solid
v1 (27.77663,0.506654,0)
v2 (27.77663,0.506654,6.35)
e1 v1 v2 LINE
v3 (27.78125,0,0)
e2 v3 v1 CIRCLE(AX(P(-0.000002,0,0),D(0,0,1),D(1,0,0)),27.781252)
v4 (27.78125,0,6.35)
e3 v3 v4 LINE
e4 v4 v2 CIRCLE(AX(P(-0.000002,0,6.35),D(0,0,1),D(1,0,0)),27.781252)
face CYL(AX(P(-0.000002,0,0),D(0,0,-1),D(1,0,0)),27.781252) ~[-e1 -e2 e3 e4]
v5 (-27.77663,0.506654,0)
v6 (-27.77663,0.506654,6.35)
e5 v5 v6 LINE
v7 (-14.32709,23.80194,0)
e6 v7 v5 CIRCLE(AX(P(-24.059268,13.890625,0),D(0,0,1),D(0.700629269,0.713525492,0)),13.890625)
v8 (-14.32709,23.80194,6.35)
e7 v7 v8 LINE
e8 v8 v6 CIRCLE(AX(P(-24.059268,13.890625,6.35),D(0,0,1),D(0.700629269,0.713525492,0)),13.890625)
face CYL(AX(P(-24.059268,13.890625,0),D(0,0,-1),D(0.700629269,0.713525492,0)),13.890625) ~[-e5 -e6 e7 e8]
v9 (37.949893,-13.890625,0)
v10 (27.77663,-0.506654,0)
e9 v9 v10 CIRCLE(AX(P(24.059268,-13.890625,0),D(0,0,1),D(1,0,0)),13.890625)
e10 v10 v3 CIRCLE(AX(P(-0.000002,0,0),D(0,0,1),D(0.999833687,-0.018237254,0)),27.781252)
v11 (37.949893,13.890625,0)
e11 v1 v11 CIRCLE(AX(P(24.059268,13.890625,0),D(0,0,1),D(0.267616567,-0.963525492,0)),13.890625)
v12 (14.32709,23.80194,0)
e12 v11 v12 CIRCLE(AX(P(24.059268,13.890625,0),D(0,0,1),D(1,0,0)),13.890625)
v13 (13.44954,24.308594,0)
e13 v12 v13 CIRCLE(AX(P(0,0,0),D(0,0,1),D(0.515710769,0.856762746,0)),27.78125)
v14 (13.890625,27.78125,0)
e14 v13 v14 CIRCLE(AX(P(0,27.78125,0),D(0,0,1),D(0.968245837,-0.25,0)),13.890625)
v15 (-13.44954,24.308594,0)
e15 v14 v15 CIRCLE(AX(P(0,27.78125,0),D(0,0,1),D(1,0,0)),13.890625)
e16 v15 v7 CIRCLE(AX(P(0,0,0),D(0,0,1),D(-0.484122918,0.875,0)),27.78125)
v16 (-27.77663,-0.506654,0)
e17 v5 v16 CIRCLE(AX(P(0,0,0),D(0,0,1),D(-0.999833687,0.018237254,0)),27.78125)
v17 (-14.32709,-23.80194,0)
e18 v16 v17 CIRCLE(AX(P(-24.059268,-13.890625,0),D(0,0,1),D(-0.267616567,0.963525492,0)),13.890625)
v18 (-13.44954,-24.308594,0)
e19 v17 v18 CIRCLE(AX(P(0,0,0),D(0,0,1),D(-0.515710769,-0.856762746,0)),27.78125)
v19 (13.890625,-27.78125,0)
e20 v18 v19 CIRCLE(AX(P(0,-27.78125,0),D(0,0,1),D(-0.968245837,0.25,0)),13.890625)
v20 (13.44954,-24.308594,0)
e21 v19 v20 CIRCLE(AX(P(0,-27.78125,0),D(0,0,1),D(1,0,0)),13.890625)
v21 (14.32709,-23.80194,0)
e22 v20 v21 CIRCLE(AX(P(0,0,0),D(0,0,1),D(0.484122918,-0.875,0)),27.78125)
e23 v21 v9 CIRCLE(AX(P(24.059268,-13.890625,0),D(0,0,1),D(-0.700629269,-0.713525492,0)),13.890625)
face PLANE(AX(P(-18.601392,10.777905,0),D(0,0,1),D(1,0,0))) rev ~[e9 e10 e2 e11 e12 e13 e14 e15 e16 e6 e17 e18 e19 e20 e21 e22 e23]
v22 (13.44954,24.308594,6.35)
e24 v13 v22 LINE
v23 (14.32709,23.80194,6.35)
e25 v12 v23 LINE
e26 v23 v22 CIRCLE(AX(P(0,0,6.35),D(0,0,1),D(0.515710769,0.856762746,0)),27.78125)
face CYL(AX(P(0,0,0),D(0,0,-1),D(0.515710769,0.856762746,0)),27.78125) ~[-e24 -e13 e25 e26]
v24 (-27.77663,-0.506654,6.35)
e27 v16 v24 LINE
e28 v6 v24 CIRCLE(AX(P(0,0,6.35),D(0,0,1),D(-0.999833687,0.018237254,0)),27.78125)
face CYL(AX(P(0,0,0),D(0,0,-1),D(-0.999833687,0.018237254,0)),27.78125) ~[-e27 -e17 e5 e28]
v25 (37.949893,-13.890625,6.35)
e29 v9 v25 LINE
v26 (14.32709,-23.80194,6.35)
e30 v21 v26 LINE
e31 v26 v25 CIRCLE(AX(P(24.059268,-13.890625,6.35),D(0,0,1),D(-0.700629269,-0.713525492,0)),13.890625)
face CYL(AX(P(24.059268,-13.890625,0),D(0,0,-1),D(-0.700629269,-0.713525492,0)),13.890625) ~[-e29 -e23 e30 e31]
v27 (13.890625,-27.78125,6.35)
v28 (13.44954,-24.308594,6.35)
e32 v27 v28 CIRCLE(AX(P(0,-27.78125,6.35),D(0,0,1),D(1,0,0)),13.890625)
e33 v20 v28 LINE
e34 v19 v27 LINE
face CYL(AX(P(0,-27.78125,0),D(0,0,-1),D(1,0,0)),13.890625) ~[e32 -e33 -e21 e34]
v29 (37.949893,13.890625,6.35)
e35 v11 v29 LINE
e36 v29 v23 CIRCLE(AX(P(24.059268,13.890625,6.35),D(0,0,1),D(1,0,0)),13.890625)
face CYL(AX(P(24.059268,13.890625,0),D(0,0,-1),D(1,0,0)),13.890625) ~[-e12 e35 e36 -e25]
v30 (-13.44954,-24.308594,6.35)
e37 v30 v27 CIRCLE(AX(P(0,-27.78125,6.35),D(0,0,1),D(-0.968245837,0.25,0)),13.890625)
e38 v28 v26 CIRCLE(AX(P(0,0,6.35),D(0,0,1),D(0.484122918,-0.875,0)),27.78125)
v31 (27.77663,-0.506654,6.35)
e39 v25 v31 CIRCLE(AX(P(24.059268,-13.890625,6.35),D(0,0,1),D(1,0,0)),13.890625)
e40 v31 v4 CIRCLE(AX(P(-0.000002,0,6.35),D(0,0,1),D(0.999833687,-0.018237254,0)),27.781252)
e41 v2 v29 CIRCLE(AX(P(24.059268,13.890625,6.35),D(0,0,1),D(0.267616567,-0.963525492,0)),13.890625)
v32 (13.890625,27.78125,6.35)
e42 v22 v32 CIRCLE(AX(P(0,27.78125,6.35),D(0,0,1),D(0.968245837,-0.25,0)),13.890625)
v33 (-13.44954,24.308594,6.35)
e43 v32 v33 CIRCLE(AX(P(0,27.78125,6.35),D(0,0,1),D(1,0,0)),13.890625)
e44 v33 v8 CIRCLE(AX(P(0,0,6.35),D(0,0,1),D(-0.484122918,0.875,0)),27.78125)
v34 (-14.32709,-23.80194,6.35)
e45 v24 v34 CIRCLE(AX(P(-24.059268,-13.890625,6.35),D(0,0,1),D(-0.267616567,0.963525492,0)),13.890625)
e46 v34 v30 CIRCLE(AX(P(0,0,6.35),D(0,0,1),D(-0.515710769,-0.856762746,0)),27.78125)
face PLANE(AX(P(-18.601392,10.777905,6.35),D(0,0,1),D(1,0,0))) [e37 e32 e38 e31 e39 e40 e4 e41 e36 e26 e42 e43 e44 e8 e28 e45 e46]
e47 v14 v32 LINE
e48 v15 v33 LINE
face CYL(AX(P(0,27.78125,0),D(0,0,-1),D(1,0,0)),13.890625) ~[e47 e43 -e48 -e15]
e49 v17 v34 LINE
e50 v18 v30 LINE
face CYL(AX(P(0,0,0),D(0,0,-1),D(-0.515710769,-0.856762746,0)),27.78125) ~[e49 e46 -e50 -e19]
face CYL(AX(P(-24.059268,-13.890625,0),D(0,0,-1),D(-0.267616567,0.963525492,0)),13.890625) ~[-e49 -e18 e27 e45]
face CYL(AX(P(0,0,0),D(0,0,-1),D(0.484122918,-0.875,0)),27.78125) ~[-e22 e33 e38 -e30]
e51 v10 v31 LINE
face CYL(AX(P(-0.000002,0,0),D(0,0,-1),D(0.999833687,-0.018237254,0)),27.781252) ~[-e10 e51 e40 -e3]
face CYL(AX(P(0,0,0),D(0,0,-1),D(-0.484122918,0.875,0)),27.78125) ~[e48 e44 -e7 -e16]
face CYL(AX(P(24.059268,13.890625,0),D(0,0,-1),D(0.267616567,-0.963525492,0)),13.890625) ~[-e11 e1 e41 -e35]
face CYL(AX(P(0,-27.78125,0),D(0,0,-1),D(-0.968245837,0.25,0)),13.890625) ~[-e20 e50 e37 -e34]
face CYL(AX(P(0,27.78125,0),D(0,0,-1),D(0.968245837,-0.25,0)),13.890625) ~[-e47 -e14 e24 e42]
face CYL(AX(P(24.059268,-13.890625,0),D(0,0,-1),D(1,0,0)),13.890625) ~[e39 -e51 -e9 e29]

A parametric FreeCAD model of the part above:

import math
import FreeCAD as App
import Part
import Sketcher
Q = App.Units.Quantity

doc = App.newDocument("Part")
params = doc.addObject("Spreadsheet::Sheet", "Params")
for row, (alias, value) in enumerate([
    ("sketch1_radius", "1.09375 in"),
    ("sketch1_radius2", "0.546875 in"),
    ("pad1_length", "0.25 in"),
], start=1):
    params.set(f"A{row}", alias)
    params.set(f"B{row}", "=" + value)
    params.setAlias(f"B{row}", alias)

body = doc.addObject("PartDesign::Body", "Body")

sketch1 = body.newObject("Sketcher::SketchObject", "Sketch")
sketch1.AttachmentSupport = (doc.getObject("XY_Plane"), [""])
sketch1.MapMode = "FlatFace"
sketch1.addGeometry(Part.ArcOfCircle(Part.Circle(App.Vector(0, 0, 0), App.Vector(0, 0, 1), 27.8), math.radians(-61.04), math.radians(-58.96)), False)
sketch1.addGeometry(Part.ArcOfCircle(Part.Circle(App.Vector(24.1, -13.9, 0), App.Vector(0, 0, 1), 13.9), math.radians(-134), math.radians(0)), False)
sketch1.addGeometry(Part.ArcOfCircle(Part.Circle(App.Vector(24.1, -13.9, 0), App.Vector(0, 0, 1), 13.9), math.radians(0), math.radians(74)), False)
sketch1.addGeometry(Part.ArcOfCircle(Part.Circle(App.Vector(0, 0, 0), App.Vector(0, 0, 1), 27.8), math.radians(-1.04), math.radians(0)), False)
sketch1.addGeometry(Part.ArcOfCircle(Part.Circle(App.Vector(0, 0, 0), App.Vector(0, 0, 1), 27.8), math.radians(0), math.radians(1.04)), False)
sketch1.addGeometry(Part.ArcOfCircle(Part.Circle(App.Vector(24.1, 13.9, 0), App.Vector(0, 0, 1), 13.9), math.radians(-74), math.radians(0)), False)
sketch1.addGeometry(Part.ArcOfCircle(Part.Circle(App.Vector(24.1, 13.9, 0), App.Vector(0, 0, 1), 13.9), math.radians(0), math.radians(134)), False)
sketch1.addGeometry(Part.ArcOfCircle(Part.Circle(App.Vector(0, 0, 0), App.Vector(0, 0, 1), 27.8), math.radians(58.96), math.radians(61.04)), False)
sketch1.addGeometry(Part.ArcOfCircle(Part.Circle(App.Vector(0, 27.8, 0), App.Vector(0, 0, 1), 13.9), math.radians(-14.48), math.radians(0)), False)
sketch1.addGeometry(Part.ArcOfCircle(Part.Circle(App.Vector(0, 27.8, 0), App.Vector(0, 0, 1), 13.9), math.radians(0), math.radians(194)), False)
sketch1.addGeometry(Part.ArcOfCircle(Part.Circle(App.Vector(0, 0, 0), App.Vector(0, 0, 1), 27.8), math.radians(118.96), math.radians(121.04)), False)
sketch1.addGeometry(Part.ArcOfCircle(Part.Circle(App.Vector(-24.1, 13.9, 0), App.Vector(0, 0, 1), 13.9), math.radians(46), math.radians(254)), False)
sketch1.addGeometry(Part.ArcOfCircle(Part.Circle(App.Vector(0, 0, 0), App.Vector(0, 0, 1), 27.8), math.radians(178.96), math.radians(181.04)), False)
sketch1.addGeometry(Part.ArcOfCircle(Part.Circle(App.Vector(-24.1, -13.9, 0), App.Vector(0, 0, 1), 13.9), math.radians(106), math.radians(314)), False)
sketch1.addGeometry(Part.ArcOfCircle(Part.Circle(App.Vector(0, 0, 0), App.Vector(0, 0, 1), 27.8), math.radians(-121.04), math.radians(-118.96)), False)
sketch1.addGeometry(Part.ArcOfCircle(Part.Circle(App.Vector(0, -27.8, 0), App.Vector(0, 0, 1), 13.9), math.radians(166), math.radians(360)), False)
sketch1.addGeometry(Part.ArcOfCircle(Part.Circle(App.Vector(0, -27.8, 0), App.Vector(0, 0, 1), 13.9), math.radians(0), math.radians(14.48)), False)
sketch1.addConstraint(Sketcher.Constraint("Coincident", 0, 2, 1, 1))
sketch1.addConstraint(Sketcher.Constraint("Tangent", 1, 2, 2, 1))
sketch1.addConstraint(Sketcher.Constraint("Coincident", 2, 2, 3, 1))
sketch1.addConstraint(Sketcher.Constraint("Tangent", 3, 2, 4, 1))
sketch1.addConstraint(Sketcher.Constraint("Coincident", 4, 2, 5, 1))
sketch1.addConstraint(Sketcher.Constraint("Tangent", 5, 2, 6, 1))
sketch1.addConstraint(Sketcher.Constraint("Coincident", 6, 2, 7, 1))
sketch1.addConstraint(Sketcher.Constraint("Coincident", 7, 2, 8, 1))
sketch1.addConstraint(Sketcher.Constraint("Tangent", 8, 2, 9, 1))
sketch1.addConstraint(Sketcher.Constraint("Coincident", 9, 2, 10, 1))
sketch1.addConstraint(Sketcher.Constraint("Coincident", 10, 2, 11, 1))
sketch1.addConstraint(Sketcher.Constraint("Coincident", 11, 2, 12, 1))
sketch1.addConstraint(Sketcher.Constraint("Coincident", 12, 2, 13, 1))
sketch1.addConstraint(Sketcher.Constraint("Coincident", 13, 2, 14, 1))
sketch1.addConstraint(Sketcher.Constraint("Coincident", 14, 2, 15, 1))
sketch1.addConstraint(Sketcher.Constraint("Tangent", 15, 2, 16, 1))
sketch1.addConstraint(Sketcher.Constraint("Coincident", 16, 2, 0, 1))
sketch1.addConstraint(Sketcher.Constraint("Coincident", 0, 3, -1, 1))
sketch1.addConstraint(Sketcher.Constraint("Coincident", 3, 3, -1, 1))
sketch1.addConstraint(Sketcher.Constraint("Coincident", 7, 3, -1, 1))
sketch1.addConstraint(Sketcher.Constraint("Coincident", 10, 3, -1, 1))
sketch1.addConstraint(Sketcher.Constraint("Coincident", 12, 3, -1, 1))
sketch1.addConstraint(Sketcher.Constraint("Coincident", 14, 3, -1, 1))
sketch1.addConstraint(Sketcher.Constraint("Equal", 1, 2))
sketch1.addConstraint(Sketcher.Constraint("Equal", 0, 3))
sketch1.addConstraint(Sketcher.Constraint("Equal", 3, 4))
sketch1.addConstraint(Sketcher.Constraint("Equal", 2, 5))
sketch1.addConstraint(Sketcher.Constraint("Equal", 5, 6))
sketch1.addConstraint(Sketcher.Constraint("Equal", 4, 7))
sketch1.addConstraint(Sketcher.Constraint("Equal", 6, 8))
sketch1.addConstraint(Sketcher.Constraint("Equal", 8, 9))
sketch1.addConstraint(Sketcher.Constraint("Equal", 7, 10))
sketch1.addConstraint(Sketcher.Constraint("Equal", 9, 11))
sketch1.addConstraint(Sketcher.Constraint("Equal", 10, 12))
sketch1.addConstraint(Sketcher.Constraint("Equal", 11, 13))
sketch1.addConstraint(Sketcher.Constraint("Equal", 12, 14))
sketch1.addConstraint(Sketcher.Constraint("Equal", 13, 15))
sketch1.addConstraint(Sketcher.Constraint("Equal", 15, 16))
sketch1.addConstraint(Sketcher.Constraint("Symmetric", 1, 3, 11, 3, -1, 1))
sketch1.addConstraint(Sketcher.Constraint("Symmetric", 5, 3, 13, 3, -1, 1))
sketch1.addConstraint(Sketcher.Constraint("Symmetric", 8, 3, 15, 3, -1, 1))
sketch1.addConstraint(Sketcher.Constraint("Symmetric", 5, 3, 11, 3, -2))
sketch1.addConstraint(Sketcher.Constraint("Symmetric", 8, 2, 15, 2, -1))
sketch1.addConstraint(Sketcher.Constraint("PointOnObject", 3, 2, -1))
sketch1.addConstraint(Sketcher.Constraint("Horizontal", 13, 3, 1, 2))
sketch1.addConstraint(Sketcher.Constraint("Horizontal", 11, 3, 5, 2))
sketch1.addConstraint(Sketcher.Constraint("Horizontal", 9, 3, 8, 2))
sketch1.addConstraint(Sketcher.Constraint("Radius", 0, Q("1.09375 in")))
sketch1.addConstraint(Sketcher.Constraint("Radius", 1, Q("0.546875 in")))
sketch1.addConstraint(Sketcher.Constraint("DistanceY", 1, 3, -1, 1, Q("0.546875 in")))
sketch1.addConstraint(Sketcher.Constraint("DistanceY", -1, 1, 8, 3, Q("1.09375 in")))
sketch1.addConstraint(Sketcher.Constraint("DistanceX", -1, 1, 1, 3, Q("24.059268 mm")))
sketch1.setExpression("Constraints[47]", "Params.sketch1_radius")
sketch1.setExpression("Constraints[48]", "Params.sketch1_radius2")
pad1 = body.newObject("PartDesign::Pad", "Pad")
pad1.Profile = sketch1
pad1.setExpression("Length", "Params.pad1_length")

doc.recompute()
